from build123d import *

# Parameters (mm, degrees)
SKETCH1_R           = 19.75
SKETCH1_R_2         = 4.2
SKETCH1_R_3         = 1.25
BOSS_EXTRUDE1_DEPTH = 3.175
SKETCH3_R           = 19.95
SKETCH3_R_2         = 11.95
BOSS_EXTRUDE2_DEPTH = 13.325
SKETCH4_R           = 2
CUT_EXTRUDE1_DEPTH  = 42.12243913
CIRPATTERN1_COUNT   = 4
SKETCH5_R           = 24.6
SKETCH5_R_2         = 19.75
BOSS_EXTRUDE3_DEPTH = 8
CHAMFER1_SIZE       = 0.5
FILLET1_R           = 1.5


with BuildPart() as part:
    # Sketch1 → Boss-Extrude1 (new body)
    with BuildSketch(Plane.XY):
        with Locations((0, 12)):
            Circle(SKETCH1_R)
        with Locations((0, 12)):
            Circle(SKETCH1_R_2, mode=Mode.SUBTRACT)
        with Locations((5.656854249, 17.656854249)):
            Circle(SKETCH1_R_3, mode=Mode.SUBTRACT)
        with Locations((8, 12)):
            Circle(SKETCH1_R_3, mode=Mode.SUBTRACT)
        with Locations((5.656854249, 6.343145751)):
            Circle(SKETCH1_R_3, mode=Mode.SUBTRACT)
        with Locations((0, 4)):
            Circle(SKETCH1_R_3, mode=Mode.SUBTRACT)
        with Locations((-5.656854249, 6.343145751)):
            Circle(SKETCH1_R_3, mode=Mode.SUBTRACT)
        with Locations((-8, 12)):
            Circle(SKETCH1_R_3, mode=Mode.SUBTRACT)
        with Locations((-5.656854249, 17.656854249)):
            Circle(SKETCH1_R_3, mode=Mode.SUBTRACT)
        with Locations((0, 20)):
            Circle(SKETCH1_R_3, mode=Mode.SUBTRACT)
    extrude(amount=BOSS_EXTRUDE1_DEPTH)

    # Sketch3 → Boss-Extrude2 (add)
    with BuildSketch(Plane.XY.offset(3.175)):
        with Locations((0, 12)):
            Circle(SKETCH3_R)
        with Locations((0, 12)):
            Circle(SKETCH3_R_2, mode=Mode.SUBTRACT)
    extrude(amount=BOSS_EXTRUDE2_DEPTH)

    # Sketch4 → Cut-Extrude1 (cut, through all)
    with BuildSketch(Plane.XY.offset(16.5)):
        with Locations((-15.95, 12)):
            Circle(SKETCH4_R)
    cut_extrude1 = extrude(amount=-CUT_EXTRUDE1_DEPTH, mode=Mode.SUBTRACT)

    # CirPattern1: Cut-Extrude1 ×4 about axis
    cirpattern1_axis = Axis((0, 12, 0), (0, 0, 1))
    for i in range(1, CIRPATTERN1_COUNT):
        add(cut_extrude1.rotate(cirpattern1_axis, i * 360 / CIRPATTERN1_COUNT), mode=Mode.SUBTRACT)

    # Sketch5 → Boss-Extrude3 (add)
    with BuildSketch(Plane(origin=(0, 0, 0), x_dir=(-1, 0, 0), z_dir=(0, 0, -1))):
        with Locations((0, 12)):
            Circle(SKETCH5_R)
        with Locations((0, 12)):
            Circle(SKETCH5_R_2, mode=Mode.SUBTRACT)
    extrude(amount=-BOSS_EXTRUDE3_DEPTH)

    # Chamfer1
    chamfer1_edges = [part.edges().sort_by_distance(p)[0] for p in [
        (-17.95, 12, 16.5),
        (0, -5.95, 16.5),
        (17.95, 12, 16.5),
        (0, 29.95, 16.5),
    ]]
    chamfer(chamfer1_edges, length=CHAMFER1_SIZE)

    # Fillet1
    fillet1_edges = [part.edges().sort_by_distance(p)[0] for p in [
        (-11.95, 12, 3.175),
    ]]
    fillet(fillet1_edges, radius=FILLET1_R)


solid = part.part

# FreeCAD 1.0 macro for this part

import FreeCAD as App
import Part
import Sketcher

V = App.Vector


def edges_at(feature, points):
    """Names of the edges that pass closest to the given points."""
    edges = feature.Shape.Edges
    near = lambda p: min(range(len(edges)), key=lambda i: edges[i].distToShape(Part.Vertex(*p))[0])
    return sorted({f"Edge{near(p) + 1}" for p in points})

doc = App.newDocument("Part")
body = doc.addObject("PartDesign::Body", "Body")

sketch1 = doc.addObject("Sketcher::SketchObject", "Sketch")
body.addObject(sketch1)
sketch1.AttachmentSupport = (doc.XY_Plane, [""])
sketch1.MapMode = "FlatFace"
sketch1.addGeometry([
    Part.Circle(V(0, 12, 0), V(0, 0, 1), 19.75),
    Part.Circle(V(-5.656854, 6.343146, 0), V(0, 0, 1), 1.25),
    Part.Circle(V(0, 4, 0), V(0, 0, 1), 1.25),
    Part.Circle(V(5.656854, 6.343146, 0), V(0, 0, 1), 1.25),
    Part.Circle(V(-8, 12, 0), V(0, 0, 1), 1.25),
    Part.Circle(V(-5.656854, 17.656854, 0), V(0, 0, 1), 1.25),
    Part.Circle(V(0, 12, 0), V(0, 0, 1), 4.2),
    Part.Circle(V(8, 12, 0), V(0, 0, 1), 1.25),
    Part.Circle(V(0, 20, 0), V(0, 0, 1), 1.25),
    Part.Circle(V(5.656854, 17.656854, 0), V(0, 0, 1), 1.25),
], False)
sketch1.addConstraint([
    Sketcher.Constraint("Coincident", 6, 3, 0, 3),
    Sketcher.Constraint("Equal", 1, 2),
    Sketcher.Constraint("Equal", 2, 3),
    Sketcher.Constraint("Equal", 3, 4),
    Sketcher.Constraint("Equal", 4, 5),
    Sketcher.Constraint("Equal", 5, 7),
    Sketcher.Constraint("Equal", 7, 8),
    Sketcher.Constraint("Equal", 8, 9),
    Sketcher.Constraint("Symmetric", 1, 3, 3, 3, -2),
    Sketcher.Constraint("Symmetric", 4, 3, 7, 3, -2),
    Sketcher.Constraint("Symmetric", 5, 3, 9, 3, -2),
    Sketcher.Constraint("PointOnObject", 0, 3, -2),
    Sketcher.Constraint("PointOnObject", 2, 3, -2),
    Sketcher.Constraint("PointOnObject", 8, 3, -2),
    Sketcher.Constraint("Horizontal", 0, 3, 4, 3),
    Sketcher.Constraint("Vertical", 1, 3, 5, 3),
    Sketcher.Constraint("Diameter", 0, 39.5),
    Sketcher.Constraint("Diameter", 1, 2.5),
    Sketcher.Constraint("Diameter", 6, 8.4),
    Sketcher.Constraint("DistanceY", -1, 1, 0, 3, 12.0),
    Sketcher.Constraint("DistanceY", -1, 1, 2, 3, 4.0),
    Sketcher.Constraint("DistanceX", 4, 3, -1, 1, 8.0),
    Sketcher.Constraint("DistanceY", -1, 1, 8, 3, 20.0),
    Sketcher.Constraint("DistanceX", 1, 3, 3, 3, 11.313708),
    Sketcher.Constraint("DistanceY", 1, 3, 5, 3, 11.313708),
    Sketcher.Constraint("DistanceY", -1, 1, 1, 3, 6.343146),
])
pad1 = doc.addObject("PartDesign::Pad", "Pad")
body.addObject(pad1)
pad1.Profile = sketch1
pad1.Length = 3.175

sketch2 = doc.addObject("Sketcher::SketchObject", "Sketch001")
body.addObject(sketch2)
sketch2.AttachmentSupport = (doc.XY_Plane, [""])
sketch2.MapMode = "FlatFace"
sketch2.AttachmentOffset = App.Placement(V(0, 0, 3.175), App.Rotation())
sketch2.addGeometry([
    Part.Circle(V(0, 12, 0), V(0, 0, 1), 19.95),
    Part.Circle(V(0, 12, 0), V(0, 0, 1), 11.95),
], False)
sketch2.addConstraint([
    Sketcher.Constraint("Coincident", 1, 3, 0, 3),
    Sketcher.Constraint("PointOnObject", 0, 3, -2),
    Sketcher.Constraint("Diameter", 0, 39.9),
    Sketcher.Constraint("Diameter", 1, 23.9),
    Sketcher.Constraint("DistanceY", -1, 1, 0, 3, 12.0),
])
pad2 = doc.addObject("PartDesign::Pad", "Pad001")
body.addObject(pad2)
pad2.Profile = sketch2
pad2.Length = 13.325

sketch3 = doc.addObject("Sketcher::SketchObject", "Sketch002")
body.addObject(sketch3)
sketch3.AttachmentSupport = (doc.XY_Plane, [""])
sketch3.MapMode = "FlatFace"
sketch3.AttachmentOffset = App.Placement(V(0, 0, 16.5), App.Rotation())
sketch3.addGeometry(Part.Circle(V(-15.95, 12, 0), V(0, 0, 1), 2), False)
sketch3.addConstraint([
    Sketcher.Constraint("Diameter", 0, 4.0),
    Sketcher.Constraint("DistanceY", -1, 1, 0, 3, 12.0),
    Sketcher.Constraint("DistanceX", 0, 3, -1, 1, 15.95),
])
pocket1 = doc.addObject("PartDesign::Pocket", "Pocket")
body.addObject(pocket1)
pocket1.Profile = sketch3
pocket1.Type = "ThroughAll"
doc.recompute()

datumline = doc.addObject("PartDesign::Line", "DatumLine")
body.addObject(datumline)
datumline.Placement = App.Placement(V(0, 12, 0), App.Rotation(V(0, 0, 1), V(0, 0, 1)))
polarpattern = doc.addObject("PartDesign::PolarPattern", "PolarPattern")
body.addObject(polarpattern)
polarpattern.Originals = [pocket1]
polarpattern.Axis = (datumline, [""])
polarpattern.Angle = 360
polarpattern.Occurrences = 4
body.Tip = polarpattern

sketch4 = doc.addObject("Sketcher::SketchObject", "Sketch003")
body.addObject(sketch4)
sketch4.AttachmentSupport = (doc.XY_Plane, [""])
sketch4.MapMode = "FlatFace"
sketch4.addGeometry([
    Part.Circle(V(0, 12, 0), V(0, 0, 1), 24.6),
    Part.Circle(V(0, 12, 0), V(0, 0, 1), 19.75),
], False)
sketch4.addConstraint([
    Sketcher.Constraint("Coincident", 1, 3, 0, 3),
    Sketcher.Constraint("PointOnObject", 0, 3, -2),
    Sketcher.Constraint("Diameter", 0, 49.2),
    Sketcher.Constraint("Diameter", 1, 39.5),
    Sketcher.Constraint("DistanceY", -1, 1, 0, 3, 12.0),
])
pad3 = doc.addObject("PartDesign::Pad", "Pad002")
body.addObject(pad3)
pad3.Profile = sketch4
pad3.Length = 8
doc.recompute()

chamfer = doc.addObject("PartDesign::Chamfer", "Chamfer")
body.addObject(chamfer)
chamfer.Base = (pad3, edges_at(pad3, [
    (-17.95, 12, 16.5),
    (0, -5.95, 16.5),
    (17.95, 12, 16.5),
    (0, 29.95, 16.5),
]))
chamfer.Size = 0.5
doc.recompute()

fillet = doc.addObject("PartDesign::Fillet", "Fillet")
body.addObject(fillet)
fillet.Base = (chamfer, edges_at(chamfer, [(-11.95, 12, 3.175)]))
fillet.Radius = 1.5

doc.recompute()
